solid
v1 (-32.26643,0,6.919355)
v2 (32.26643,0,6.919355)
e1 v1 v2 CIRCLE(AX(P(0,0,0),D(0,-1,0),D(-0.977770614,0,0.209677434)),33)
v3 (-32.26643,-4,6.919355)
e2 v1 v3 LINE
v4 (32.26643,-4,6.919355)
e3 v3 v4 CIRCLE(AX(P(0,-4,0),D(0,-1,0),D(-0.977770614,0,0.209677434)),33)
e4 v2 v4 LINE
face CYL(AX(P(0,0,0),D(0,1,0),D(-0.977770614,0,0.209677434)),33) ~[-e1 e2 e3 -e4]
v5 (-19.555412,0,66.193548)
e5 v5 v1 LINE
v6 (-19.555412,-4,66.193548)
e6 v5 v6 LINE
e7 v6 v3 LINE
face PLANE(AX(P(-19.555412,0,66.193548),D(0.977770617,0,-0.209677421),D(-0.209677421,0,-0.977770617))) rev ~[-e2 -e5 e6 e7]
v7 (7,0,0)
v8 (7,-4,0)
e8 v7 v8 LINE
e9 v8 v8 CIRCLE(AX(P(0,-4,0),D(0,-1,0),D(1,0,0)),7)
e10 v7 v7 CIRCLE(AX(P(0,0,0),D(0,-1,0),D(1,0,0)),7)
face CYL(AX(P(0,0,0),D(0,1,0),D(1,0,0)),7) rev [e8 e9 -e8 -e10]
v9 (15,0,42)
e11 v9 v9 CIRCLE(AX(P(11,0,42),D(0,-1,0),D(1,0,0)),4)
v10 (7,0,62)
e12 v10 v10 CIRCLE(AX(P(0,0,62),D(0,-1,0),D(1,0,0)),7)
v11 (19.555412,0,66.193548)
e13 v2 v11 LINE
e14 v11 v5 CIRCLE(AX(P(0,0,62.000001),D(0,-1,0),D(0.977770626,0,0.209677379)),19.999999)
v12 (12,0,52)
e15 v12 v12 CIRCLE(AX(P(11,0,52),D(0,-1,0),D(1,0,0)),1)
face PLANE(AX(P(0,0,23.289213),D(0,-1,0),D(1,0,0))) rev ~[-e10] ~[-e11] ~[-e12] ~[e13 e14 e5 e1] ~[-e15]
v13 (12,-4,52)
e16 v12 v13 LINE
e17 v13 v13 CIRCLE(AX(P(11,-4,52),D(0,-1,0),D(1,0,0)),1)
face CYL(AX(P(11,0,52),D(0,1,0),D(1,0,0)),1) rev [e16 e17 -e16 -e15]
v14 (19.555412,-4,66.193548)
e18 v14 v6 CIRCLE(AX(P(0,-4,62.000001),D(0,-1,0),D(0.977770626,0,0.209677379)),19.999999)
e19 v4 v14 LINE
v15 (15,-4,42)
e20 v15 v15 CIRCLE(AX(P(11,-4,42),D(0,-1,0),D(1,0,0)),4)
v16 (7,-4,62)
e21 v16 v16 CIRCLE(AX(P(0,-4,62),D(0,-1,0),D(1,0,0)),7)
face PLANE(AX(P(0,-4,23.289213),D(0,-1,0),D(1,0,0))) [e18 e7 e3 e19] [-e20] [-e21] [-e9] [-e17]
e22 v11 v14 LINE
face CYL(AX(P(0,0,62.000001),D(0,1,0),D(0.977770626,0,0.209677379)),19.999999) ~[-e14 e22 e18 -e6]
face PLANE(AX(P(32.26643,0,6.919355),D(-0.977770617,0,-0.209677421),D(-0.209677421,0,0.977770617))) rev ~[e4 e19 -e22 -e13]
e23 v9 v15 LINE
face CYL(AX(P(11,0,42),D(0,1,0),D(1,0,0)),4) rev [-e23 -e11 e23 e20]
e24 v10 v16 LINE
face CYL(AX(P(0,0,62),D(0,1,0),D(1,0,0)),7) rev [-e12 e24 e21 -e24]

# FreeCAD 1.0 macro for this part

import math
import FreeCAD as App
import Part
import Sketcher

V = App.Vector

doc = App.newDocument("Part")
body = doc.addObject("PartDesign::Body", "Body")

sketch1 = body.newObject("Sketcher::SketchObject", "Sketch")
sketch1.AttachmentSupport = (doc.getObject("XZ_Plane"), [""])
sketch1.MapMode = "FlatFace"
sketch1.addGeometry(Part.ArcOfCircle(Part.Circle(V(0, 62, 0), V(0, 0, 1), 20), math.radians(12), math.radians(168)), False)
sketch1.addGeometry(Part.LineSegment(V(-19.6, 66.2, 0), V(-32.3, 6.9, 0)), False)
sketch1.addGeometry(Part.ArcOfCircle(Part.Circle(V(0, 0, 0), V(0, 0, 1), 33), math.radians(168), math.radians(372)), False)
sketch1.addGeometry(Part.LineSegment(V(32.3, 6.9, 0), V(19.6, 66.2, 0)), False)
sketch1.addGeometry(Part.Circle(V(0, 0, 0), V(0, 0, 1), 7), False)
sketch1.addGeometry(Part.Circle(V(0, 62, 0), V(0, 0, 1), 7), False)
sketch1.addGeometry(Part.Circle(V(11, 42, 0), V(0, 0, 1), 4), False)
sketch1.addGeometry(Part.Circle(V(11, 52, 0), V(0, 0, 1), 1), False)
sketch1.addConstraint(Sketcher.Constraint("Tangent", 0, 2, 1, 1))
sketch1.addConstraint(Sketcher.Constraint("Tangent", 1, 2, 2, 1))
sketch1.addConstraint(Sketcher.Constraint("Tangent", 2, 2, 3, 1))
sketch1.addConstraint(Sketcher.Constraint("Tangent", 3, 2, 0, 1))
sketch1.addConstraint(Sketcher.Constraint("Coincident", 2, 3, -1, 1))
sketch1.addConstraint(Sketcher.Constraint("Coincident", 4, 3, -1, 1))
sketch1.addConstraint(Sketcher.Constraint("Coincident", 5, 3, 0, 3))
sketch1.addConstraint(Sketcher.Constraint("Equal", 4, 5))
sketch1.addConstraint(Sketcher.Constraint("PointOnObject", 0, 3, -2))
sketch1.addConstraint(Sketcher.Constraint("Vertical", 6, 3, 7, 3))
sketch1.addConstraint(Sketcher.Constraint("Diameter", 4, 14.0))
sketch1.addConstraint(Sketcher.Constraint("Diameter", 6, 8.0))
sketch1.addConstraint(Sketcher.Constraint("Diameter", 7, 2.0))
sketch1.addConstraint(Sketcher.Constraint("Radius", 0, 19.999999))
sketch1.addConstraint(Sketcher.Constraint("Radius", 2, 33.0))
sketch1.addConstraint(Sketcher.Constraint("DistanceY", -1, 1, 0, 3, 62.000001))
sketch1.addConstraint(Sketcher.Constraint("DistanceX", -1, 1, 6, 3, 11.0))
sketch1.addConstraint(Sketcher.Constraint("DistanceY", -1, 1, 6, 3, 42.0))
sketch1.addConstraint(Sketcher.Constraint("DistanceY", -1, 1, 7, 3, 52.0))
pad1 = body.newObject("PartDesign::Pad", "Pad")
pad1.Profile = sketch1
pad1.Length = 4

doc.recompute()
